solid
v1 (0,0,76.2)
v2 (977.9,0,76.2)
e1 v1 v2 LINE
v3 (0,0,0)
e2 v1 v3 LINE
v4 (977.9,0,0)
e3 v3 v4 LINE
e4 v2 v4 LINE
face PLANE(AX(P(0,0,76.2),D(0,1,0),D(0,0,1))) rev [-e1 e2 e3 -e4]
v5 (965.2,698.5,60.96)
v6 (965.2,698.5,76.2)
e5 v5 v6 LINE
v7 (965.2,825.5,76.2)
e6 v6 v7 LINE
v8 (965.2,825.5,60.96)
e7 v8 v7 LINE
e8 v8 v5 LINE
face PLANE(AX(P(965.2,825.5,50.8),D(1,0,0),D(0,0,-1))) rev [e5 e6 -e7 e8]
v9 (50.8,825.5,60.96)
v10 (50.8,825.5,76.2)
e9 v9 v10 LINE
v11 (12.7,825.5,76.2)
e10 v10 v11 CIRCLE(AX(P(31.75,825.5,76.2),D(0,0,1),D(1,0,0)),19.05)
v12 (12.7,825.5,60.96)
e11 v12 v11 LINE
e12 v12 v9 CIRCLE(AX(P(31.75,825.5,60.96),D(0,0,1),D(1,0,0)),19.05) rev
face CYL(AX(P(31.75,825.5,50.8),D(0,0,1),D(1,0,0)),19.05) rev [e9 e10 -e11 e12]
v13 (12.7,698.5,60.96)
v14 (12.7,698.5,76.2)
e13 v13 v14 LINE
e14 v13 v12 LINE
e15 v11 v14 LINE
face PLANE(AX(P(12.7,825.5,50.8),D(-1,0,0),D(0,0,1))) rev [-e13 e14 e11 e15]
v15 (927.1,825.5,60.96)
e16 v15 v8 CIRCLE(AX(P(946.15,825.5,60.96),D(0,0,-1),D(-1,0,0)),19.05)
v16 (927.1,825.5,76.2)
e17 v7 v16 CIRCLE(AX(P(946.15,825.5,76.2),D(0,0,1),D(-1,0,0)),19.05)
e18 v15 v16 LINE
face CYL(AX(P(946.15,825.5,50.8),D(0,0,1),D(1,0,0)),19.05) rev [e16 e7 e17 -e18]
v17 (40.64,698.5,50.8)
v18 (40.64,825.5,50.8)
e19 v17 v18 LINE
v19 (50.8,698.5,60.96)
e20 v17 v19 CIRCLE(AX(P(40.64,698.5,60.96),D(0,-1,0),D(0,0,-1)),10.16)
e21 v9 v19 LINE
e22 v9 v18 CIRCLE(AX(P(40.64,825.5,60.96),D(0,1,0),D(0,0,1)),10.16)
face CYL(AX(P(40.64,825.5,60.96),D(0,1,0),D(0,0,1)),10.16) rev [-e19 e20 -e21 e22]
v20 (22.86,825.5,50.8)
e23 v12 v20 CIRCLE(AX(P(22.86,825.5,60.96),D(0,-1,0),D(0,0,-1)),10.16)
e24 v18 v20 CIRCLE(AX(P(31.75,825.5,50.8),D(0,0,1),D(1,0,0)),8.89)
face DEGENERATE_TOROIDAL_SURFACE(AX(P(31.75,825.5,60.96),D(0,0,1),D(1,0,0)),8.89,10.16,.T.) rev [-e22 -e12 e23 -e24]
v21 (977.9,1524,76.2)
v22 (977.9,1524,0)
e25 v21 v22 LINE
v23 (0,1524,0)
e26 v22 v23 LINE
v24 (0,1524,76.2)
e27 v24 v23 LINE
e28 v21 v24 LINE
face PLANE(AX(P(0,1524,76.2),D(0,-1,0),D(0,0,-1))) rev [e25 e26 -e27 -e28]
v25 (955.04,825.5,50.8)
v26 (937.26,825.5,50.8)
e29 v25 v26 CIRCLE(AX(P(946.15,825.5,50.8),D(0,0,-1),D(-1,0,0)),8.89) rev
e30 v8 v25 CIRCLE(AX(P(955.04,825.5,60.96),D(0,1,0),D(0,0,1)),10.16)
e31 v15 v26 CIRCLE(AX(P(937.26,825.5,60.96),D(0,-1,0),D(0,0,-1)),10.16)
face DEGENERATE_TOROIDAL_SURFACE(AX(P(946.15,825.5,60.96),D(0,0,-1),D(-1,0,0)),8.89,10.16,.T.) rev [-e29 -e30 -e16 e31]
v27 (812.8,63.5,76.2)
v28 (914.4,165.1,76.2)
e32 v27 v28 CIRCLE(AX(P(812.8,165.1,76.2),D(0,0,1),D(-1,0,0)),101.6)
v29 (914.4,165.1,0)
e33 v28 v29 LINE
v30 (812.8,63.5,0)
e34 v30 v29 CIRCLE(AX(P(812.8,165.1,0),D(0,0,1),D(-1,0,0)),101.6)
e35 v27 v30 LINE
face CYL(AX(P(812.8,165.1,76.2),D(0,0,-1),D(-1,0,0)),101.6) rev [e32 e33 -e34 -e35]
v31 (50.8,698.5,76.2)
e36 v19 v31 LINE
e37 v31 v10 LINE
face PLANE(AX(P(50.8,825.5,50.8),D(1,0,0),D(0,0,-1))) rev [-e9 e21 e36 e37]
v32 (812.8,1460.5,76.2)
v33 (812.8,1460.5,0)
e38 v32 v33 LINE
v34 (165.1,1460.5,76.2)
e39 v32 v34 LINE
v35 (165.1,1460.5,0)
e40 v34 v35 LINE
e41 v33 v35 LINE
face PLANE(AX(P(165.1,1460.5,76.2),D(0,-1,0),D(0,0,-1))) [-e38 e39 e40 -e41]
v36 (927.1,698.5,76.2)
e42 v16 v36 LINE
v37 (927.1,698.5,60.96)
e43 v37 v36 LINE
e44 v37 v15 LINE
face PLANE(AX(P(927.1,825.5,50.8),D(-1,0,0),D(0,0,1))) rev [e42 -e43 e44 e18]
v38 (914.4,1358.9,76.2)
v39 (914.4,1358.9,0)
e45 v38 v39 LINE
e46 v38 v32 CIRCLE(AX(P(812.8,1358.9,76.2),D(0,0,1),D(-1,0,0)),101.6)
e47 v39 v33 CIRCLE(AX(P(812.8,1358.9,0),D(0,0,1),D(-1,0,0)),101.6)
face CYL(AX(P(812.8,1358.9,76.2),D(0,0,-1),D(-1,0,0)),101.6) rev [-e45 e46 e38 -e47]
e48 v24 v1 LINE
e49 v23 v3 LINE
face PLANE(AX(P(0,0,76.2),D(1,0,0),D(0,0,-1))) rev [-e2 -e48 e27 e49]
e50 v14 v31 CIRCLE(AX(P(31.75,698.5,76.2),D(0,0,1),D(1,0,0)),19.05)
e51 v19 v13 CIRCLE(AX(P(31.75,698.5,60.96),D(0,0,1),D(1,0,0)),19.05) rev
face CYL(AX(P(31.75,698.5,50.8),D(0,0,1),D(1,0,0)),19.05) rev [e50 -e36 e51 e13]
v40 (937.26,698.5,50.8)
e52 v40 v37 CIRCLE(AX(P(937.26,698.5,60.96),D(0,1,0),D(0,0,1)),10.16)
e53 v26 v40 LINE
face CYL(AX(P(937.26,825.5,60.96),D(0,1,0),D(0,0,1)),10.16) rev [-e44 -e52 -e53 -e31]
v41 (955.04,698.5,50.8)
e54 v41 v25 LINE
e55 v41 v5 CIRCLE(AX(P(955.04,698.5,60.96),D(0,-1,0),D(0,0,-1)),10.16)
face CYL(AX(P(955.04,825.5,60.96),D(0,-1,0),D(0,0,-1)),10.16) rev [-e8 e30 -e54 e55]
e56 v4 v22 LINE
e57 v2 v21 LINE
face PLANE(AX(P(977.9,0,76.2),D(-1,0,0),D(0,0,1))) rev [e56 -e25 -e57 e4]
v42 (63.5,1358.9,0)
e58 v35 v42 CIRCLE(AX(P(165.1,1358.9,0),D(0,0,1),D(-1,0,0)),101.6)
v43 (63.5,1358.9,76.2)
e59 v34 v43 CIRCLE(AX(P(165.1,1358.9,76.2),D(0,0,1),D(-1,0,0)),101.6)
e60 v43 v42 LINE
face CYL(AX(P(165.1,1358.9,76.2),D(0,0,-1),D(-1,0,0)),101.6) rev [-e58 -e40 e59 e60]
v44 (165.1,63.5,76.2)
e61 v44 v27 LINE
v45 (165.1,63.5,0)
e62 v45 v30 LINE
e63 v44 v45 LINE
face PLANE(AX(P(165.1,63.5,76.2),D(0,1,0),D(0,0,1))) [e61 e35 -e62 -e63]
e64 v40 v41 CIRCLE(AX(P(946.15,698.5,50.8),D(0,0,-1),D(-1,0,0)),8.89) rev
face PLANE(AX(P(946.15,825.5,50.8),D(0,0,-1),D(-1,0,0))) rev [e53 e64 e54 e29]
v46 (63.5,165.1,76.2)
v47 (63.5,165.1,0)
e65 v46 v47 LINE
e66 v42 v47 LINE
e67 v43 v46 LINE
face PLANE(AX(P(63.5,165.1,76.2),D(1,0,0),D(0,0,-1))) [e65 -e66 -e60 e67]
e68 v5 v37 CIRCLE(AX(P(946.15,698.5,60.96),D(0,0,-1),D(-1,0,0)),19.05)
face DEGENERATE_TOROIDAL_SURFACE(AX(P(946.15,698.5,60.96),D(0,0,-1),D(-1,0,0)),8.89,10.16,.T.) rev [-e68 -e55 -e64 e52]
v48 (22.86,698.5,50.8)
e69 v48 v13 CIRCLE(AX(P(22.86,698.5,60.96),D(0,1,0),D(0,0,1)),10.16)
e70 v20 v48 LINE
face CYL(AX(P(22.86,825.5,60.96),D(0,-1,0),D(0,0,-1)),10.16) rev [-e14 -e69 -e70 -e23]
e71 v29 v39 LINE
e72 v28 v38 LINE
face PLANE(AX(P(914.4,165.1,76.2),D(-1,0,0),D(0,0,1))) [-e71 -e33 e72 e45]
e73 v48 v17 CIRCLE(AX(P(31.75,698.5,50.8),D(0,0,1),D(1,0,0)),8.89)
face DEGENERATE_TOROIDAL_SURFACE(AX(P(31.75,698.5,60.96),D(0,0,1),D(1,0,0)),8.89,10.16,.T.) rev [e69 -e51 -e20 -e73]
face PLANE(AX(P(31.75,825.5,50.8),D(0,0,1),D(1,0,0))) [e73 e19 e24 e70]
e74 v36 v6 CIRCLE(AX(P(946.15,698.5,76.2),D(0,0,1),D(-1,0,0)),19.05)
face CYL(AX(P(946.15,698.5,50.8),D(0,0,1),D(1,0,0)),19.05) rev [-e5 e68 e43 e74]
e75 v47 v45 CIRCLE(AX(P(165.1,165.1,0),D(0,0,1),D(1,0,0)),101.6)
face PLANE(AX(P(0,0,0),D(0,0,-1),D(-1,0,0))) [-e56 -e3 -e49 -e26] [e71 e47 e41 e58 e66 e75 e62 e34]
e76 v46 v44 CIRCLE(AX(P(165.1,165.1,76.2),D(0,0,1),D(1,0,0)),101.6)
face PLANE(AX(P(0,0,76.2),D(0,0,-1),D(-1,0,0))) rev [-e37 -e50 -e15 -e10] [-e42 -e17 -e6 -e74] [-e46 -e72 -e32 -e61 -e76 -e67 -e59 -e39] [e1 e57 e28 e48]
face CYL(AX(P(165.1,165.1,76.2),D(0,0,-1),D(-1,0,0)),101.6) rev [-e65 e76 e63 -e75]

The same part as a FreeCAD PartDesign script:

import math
import FreeCAD as App
import Part
import Sketcher
Q = App.Units.Quantity


def edges_at(feature, points):
    """Names of the edges that pass closest to the given points."""
    edges = feature.Shape.Edges
    near = lambda p: min(range(len(edges)), key=lambda i: edges[i].distToShape(Part.Vertex(*p))[0])
    return sorted({f"Edge{near(p) + 1}" for p in points})


def add_polygon(sketch, points):
    """Adds a closed chain of lines whose ends are joined by coincident constraints."""
    first, n = sketch.GeometryCount, len(points)
    for a, b in zip(points, points[1:] + points[:1]):
        sketch.addGeometry(Part.LineSegment(App.Vector(*a, 0), App.Vector(*b, 0)), False)
    for i in range(n):
        sketch.addConstraint(Sketcher.Constraint("Coincident", first + i, 2, first + (i + 1) % n, 1))

doc = App.newDocument("Part")
body = doc.addObject("PartDesign::Body", "Body")

# Sketch on XY plane
sketch1 = doc.addObject("Sketcher::SketchObject", "Sketch")
body.addObject(sketch1)
sketch1.AttachmentSupport = (doc.XY_Plane, [""])
sketch1.MapMode = "FlatFace"
add_polygon(sketch1, [(0, 1524), (0, 0), (978, 0), (978, 1524)])  # lines 0-3
sketch1.addGeometry(Part.ArcOfCircle(Part.Circle(App.Vector(165, 165, 0), App.Vector(0, 0, 1), 102), math.radians(180), math.radians(270)), False)  # 4
sketch1.addGeometry(Part.LineSegment(App.Vector(64, 165, 0), App.Vector(64, 1359, 0)), False)  # 5
sketch1.addGeometry(Part.ArcOfCircle(Part.Circle(App.Vector(165, 1359, 0), App.Vector(0, 0, 1), 102), math.radians(90), math.radians(180)), False)  # 6
sketch1.addGeometry(Part.LineSegment(App.Vector(165, 1460, 0), App.Vector(813, 1460, 0)), False)  # 7
sketch1.addGeometry(Part.ArcOfCircle(Part.Circle(App.Vector(813, 1359, 0), App.Vector(0, 0, 1), 102), math.radians(0), math.radians(90)), False)  # 8
sketch1.addGeometry(Part.LineSegment(App.Vector(914, 1359, 0), App.Vector(914, 165, 0)), False)  # 9
sketch1.addGeometry(Part.ArcOfCircle(Part.Circle(App.Vector(813, 165, 0), App.Vector(0, 0, 1), 102), math.radians(-90), math.radians(0)), False)  # 10
sketch1.addGeometry(Part.LineSegment(App.Vector(813, 64, 0), App.Vector(165, 64, 0)), False)  # 11
sketch1.addConstraint(Sketcher.Constraint("Tangent", 4, 1, 5, 1))
sketch1.addConstraint(Sketcher.Constraint("Tangent", 5, 2, 6, 2))
sketch1.addConstraint(Sketcher.Constraint("Tangent", 6, 1, 7, 1))
sketch1.addConstraint(Sketcher.Constraint("Tangent", 7, 2, 8, 2))
sketch1.addConstraint(Sketcher.Constraint("Tangent", 8, 1, 9, 1))
sketch1.addConstraint(Sketcher.Constraint("Tangent", 9, 2, 10, 2))
sketch1.addConstraint(Sketcher.Constraint("Tangent", 10, 1, 11, 1))
sketch1.addConstraint(Sketcher.Constraint("Tangent", 11, 2, 4, 2))
sketch1.addConstraint(Sketcher.Constraint("Vertical", 0))
sketch1.addConstraint(Sketcher.Constraint("Horizontal", 1))
sketch1.addConstraint(Sketcher.Constraint("Vertical", 2))
sketch1.addConstraint(Sketcher.Constraint("Horizontal", 3))
sketch1.addConstraint(Sketcher.Constraint("Vertical", 5))
sketch1.addConstraint(Sketcher.Constraint("Horizontal", 7))
sketch1.addConstraint(Sketcher.Constraint("Vertical", 9))
sketch1.addConstraint(Sketcher.Constraint("Horizontal", 11))
sketch1.addConstraint(Sketcher.Constraint("Coincident", 0, 2, -1, 1))
sketch1.addConstraint(Sketcher.Constraint("Equal", 4, 6))
sketch1.addConstraint(Sketcher.Constraint("Equal", 6, 8))
sketch1.addConstraint(Sketcher.Constraint("Equal", 8, 10))
sketch1.addConstraint(Sketcher.Constraint("Radius", 4, Q("4 in")))
sketch1.addConstraint(Sketcher.Constraint("DistanceY", 0, 2, 0, 1, Q("60 in")))
sketch1.addConstraint(Sketcher.Constraint("DistanceY", 5, 1, 5, 2, Q("47 in")))
sketch1.addConstraint(Sketcher.Constraint("DistanceX", 1, 1, 1, 2, Q("38.5 in")))
sketch1.addConstraint(Sketcher.Constraint("DistanceX", 7, 1, 7, 2, Q("25.5 in")))
sketch1.addConstraint(Sketcher.Constraint("DistanceX", -1, 1, 8, 3, Q("32 in")))
sketch1.addConstraint(Sketcher.Constraint("DistanceY", -1, 1, 4, 3, Q("6.5 in")))
pad1 = doc.addObject("PartDesign::Pad", "Pad")
body.addObject(pad1)
pad1.Profile = sketch1
pad1.Length = Q("3 in")

# Sketch on XY plane
sketch2 = doc.addObject("Sketcher::SketchObject", "Sketch001")
body.addObject(sketch2)
sketch2.AttachmentSupport = (doc.XY_Plane, [""])
sketch2.MapMode = "FlatFace"
sketch2.AttachmentOffset = App.Placement(App.Vector(0, 0, 3 * 25.4), App.Rotation())
sketch2.addGeometry(Part.LineSegment(App.Vector(51, 698, 0), App.Vector(51, 826, 0)), False)
sketch2.addGeometry(Part.ArcOfCircle(Part.Circle(App.Vector(32, 826, 0), App.Vector(0, 0, 1), 19), math.radians(0), math.radians(180)), False)
sketch2.addGeometry(Part.LineSegment(App.Vector(13, 826, 0), App.Vector(13, 698, 0)), False)
sketch2.addGeometry(Part.ArcOfCircle(Part.Circle(App.Vector(32, 698, 0), App.Vector(0, 0, 1), 19), math.radians(180), math.radians(360)), False)
sketch2.addGeometry(Part.LineSegment(App.Vector(927, 826, 0), App.Vector(927, 698, 0)), False)
sketch2.addGeometry(Part.ArcOfCircle(Part.Circle(App.Vector(946, 698, 0), App.Vector(0, 0, 1), 19), math.radians(180), math.radians(360)), False)
sketch2.addGeometry(Part.LineSegment(App.Vector(965, 698, 0), App.Vector(965, 826, 0)), False)
sketch2.addGeometry(Part.ArcOfCircle(Part.Circle(App.Vector(946, 826, 0), App.Vector(0, 0, 1), 19), math.radians(0), math.radians(180)), False)
sketch2.addConstraint(Sketcher.Constraint("Tangent", 0, 2, 1, 1))
sketch2.addConstraint(Sketcher.Constraint("Tangent", 1, 2, 2, 1))
sketch2.addConstraint(Sketcher.Constraint("Tangent", 2, 2, 3, 1))
sketch2.addConstraint(Sketcher.Constraint("Tangent", 3, 2, 0, 1))
sketch2.addConstraint(Sketcher.Constraint("Tangent", 4, 2, 5, 1))
sketch2.addConstraint(Sketcher.Constraint("Tangent", 5, 2, 6, 1))
sketch2.addConstraint(Sketcher.Constraint("Tangent", 6, 2, 7, 1))
sketch2.addConstraint(Sketcher.Constraint("Tangent", 7, 2, 4, 1))
sketch2.addConstraint(Sketcher.Constraint("Vertical", 0))
sketch2.addConstraint(Sketcher.Constraint("Vertical", 2))
sketch2.addConstraint(Sketcher.Constraint("Vertical", 4))
sketch2.addConstraint(Sketcher.Constraint("Vertical", 6))
sketch2.addConstraint(Sketcher.Constraint("Equal", 3, 5))
sketch2.addConstraint(Sketcher.Constraint("Horizontal", 3, 3, 5, 3))
sketch2.addConstraint(Sketcher.Constraint("Horizontal", 1, 3, 7, 3))
sketch2.addConstraint(Sketcher.Constraint("DistanceY", 0, 1, 0, 2, Q("5 in")))
sketch2.addConstraint(Sketcher.Constraint("Radius", 1, Q("0.75 in")))
sketch2.addConstraint(Sketcher.Constraint("DistanceX", -1, 1, 0, 2, Q("2 in")))
sketch2.addConstraint(Sketcher.Constraint("DistanceX", -1, 1, 5, 2, Q("38 in")))
sketch2.addConstraint(Sketcher.Constraint("DistanceY", -1, 1, 1, 3, Q("32.5 in")))
pocket1 = doc.addObject("PartDesign::Pocket", "Pocket")
body.addObject(pocket1)
pocket1.Profile = sketch2
pocket1.Length = Q("1 in")
doc.recompute()

fillet = doc.addObject("PartDesign::Fillet", "Fillet")
body.addObject(fillet)
fillet.Base = (pocket1, edges_at(pocket1, [
    (31.75, 844.55, 50.8),
    (50.8, 762, 50.8),
    (31.75, 679.45, 50.8),
    (12.7, 762, 50.8),
    (946.15, 844.55, 50.8),
    (965.2, 762, 50.8),
    (946.15, 679.45, 50.8),
    (927.1, 762, 50.8),
]))
fillet.Radius = Q("0.4 in")

doc.recompute()
